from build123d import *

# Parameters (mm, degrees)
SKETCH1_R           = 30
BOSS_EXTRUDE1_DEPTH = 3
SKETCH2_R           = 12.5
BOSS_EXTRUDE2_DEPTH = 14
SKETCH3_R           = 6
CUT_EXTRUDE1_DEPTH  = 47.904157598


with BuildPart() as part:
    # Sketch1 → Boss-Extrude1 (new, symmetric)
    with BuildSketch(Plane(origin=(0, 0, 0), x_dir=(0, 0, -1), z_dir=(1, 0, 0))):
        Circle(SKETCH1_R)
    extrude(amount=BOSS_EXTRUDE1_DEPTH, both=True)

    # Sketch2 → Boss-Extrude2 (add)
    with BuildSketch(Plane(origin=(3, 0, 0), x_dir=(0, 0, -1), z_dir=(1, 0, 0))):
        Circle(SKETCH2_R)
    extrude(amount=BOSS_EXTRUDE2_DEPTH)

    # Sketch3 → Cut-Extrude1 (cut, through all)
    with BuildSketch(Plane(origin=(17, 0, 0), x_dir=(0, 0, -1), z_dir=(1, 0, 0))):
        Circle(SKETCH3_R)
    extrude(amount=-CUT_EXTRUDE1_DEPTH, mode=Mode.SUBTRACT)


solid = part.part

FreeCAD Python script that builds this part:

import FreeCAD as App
import Part
import Sketcher

doc = App.newDocument("Part")
body = doc.addObject("PartDesign::Body", "Body")

sketch1 = body.newObject("Sketcher::SketchObject", "Sketch")
sketch1.AttachmentSupport = (doc.getObject("YZ_Plane"), [""])
sketch1.MapMode = "FlatFace"
sketch1.addGeometry(Part.Circle(App.Vector(0, 0, 0), App.Vector(0, 0, 1), 30), False)
sketch1.addConstraint([
    Sketcher.Constraint("Coincident", 0, 3, -1, 1),
    Sketcher.Constraint("Diameter", 0, 60.0),
])
pad1 = body.newObject("PartDesign::Pad", "Pad")
pad1.Profile = sketch1
pad1.Length = 6
pad1.Midplane = True

sketch2 = body.newObject("Sketcher::SketchObject", "Sketch001")
sketch2.AttachmentSupport = (doc.getObject("YZ_Plane"), [""])
sketch2.MapMode = "FlatFace"
sketch2.AttachmentOffset = App.Placement(App.Vector(0, 0, 3), App.Rotation())
sketch2.addGeometry(Part.Circle(App.Vector(0, 0, 0), App.Vector(0, 0, 1), 12), False)
sketch2.addConstraint([
    Sketcher.Constraint("Coincident", 0, 3, -1, 1),
    Sketcher.Constraint("Diameter", 0, 25.0),
])
pad2 = body.newObject("PartDesign::Pad", "Pad001")
pad2.Profile = sketch2
pad2.Length = 14

sketch3 = body.newObject("Sketcher::SketchObject", "Sketch002")
sketch3.AttachmentSupport = (doc.getObject("YZ_Plane"), [""])
sketch3.MapMode = "FlatFace"
sketch3.AttachmentOffset = App.Placement(App.Vector(0, 0, 17), App.Rotation())
sketch3.addGeometry(Part.Circle(App.Vector(0, 0, 0), App.Vector(0, 0, 1), 6), False)
sketch3.addConstraint([
    Sketcher.Constraint("Coincident", 0, 3, -1, 1),
    Sketcher.Constraint("Diameter", 0, 12.0),
])
pocket1 = body.newObject("PartDesign::Pocket", "Pocket")
pocket1.Profile = sketch3
pocket1.Type = "ThroughAll"

doc.recompute()
